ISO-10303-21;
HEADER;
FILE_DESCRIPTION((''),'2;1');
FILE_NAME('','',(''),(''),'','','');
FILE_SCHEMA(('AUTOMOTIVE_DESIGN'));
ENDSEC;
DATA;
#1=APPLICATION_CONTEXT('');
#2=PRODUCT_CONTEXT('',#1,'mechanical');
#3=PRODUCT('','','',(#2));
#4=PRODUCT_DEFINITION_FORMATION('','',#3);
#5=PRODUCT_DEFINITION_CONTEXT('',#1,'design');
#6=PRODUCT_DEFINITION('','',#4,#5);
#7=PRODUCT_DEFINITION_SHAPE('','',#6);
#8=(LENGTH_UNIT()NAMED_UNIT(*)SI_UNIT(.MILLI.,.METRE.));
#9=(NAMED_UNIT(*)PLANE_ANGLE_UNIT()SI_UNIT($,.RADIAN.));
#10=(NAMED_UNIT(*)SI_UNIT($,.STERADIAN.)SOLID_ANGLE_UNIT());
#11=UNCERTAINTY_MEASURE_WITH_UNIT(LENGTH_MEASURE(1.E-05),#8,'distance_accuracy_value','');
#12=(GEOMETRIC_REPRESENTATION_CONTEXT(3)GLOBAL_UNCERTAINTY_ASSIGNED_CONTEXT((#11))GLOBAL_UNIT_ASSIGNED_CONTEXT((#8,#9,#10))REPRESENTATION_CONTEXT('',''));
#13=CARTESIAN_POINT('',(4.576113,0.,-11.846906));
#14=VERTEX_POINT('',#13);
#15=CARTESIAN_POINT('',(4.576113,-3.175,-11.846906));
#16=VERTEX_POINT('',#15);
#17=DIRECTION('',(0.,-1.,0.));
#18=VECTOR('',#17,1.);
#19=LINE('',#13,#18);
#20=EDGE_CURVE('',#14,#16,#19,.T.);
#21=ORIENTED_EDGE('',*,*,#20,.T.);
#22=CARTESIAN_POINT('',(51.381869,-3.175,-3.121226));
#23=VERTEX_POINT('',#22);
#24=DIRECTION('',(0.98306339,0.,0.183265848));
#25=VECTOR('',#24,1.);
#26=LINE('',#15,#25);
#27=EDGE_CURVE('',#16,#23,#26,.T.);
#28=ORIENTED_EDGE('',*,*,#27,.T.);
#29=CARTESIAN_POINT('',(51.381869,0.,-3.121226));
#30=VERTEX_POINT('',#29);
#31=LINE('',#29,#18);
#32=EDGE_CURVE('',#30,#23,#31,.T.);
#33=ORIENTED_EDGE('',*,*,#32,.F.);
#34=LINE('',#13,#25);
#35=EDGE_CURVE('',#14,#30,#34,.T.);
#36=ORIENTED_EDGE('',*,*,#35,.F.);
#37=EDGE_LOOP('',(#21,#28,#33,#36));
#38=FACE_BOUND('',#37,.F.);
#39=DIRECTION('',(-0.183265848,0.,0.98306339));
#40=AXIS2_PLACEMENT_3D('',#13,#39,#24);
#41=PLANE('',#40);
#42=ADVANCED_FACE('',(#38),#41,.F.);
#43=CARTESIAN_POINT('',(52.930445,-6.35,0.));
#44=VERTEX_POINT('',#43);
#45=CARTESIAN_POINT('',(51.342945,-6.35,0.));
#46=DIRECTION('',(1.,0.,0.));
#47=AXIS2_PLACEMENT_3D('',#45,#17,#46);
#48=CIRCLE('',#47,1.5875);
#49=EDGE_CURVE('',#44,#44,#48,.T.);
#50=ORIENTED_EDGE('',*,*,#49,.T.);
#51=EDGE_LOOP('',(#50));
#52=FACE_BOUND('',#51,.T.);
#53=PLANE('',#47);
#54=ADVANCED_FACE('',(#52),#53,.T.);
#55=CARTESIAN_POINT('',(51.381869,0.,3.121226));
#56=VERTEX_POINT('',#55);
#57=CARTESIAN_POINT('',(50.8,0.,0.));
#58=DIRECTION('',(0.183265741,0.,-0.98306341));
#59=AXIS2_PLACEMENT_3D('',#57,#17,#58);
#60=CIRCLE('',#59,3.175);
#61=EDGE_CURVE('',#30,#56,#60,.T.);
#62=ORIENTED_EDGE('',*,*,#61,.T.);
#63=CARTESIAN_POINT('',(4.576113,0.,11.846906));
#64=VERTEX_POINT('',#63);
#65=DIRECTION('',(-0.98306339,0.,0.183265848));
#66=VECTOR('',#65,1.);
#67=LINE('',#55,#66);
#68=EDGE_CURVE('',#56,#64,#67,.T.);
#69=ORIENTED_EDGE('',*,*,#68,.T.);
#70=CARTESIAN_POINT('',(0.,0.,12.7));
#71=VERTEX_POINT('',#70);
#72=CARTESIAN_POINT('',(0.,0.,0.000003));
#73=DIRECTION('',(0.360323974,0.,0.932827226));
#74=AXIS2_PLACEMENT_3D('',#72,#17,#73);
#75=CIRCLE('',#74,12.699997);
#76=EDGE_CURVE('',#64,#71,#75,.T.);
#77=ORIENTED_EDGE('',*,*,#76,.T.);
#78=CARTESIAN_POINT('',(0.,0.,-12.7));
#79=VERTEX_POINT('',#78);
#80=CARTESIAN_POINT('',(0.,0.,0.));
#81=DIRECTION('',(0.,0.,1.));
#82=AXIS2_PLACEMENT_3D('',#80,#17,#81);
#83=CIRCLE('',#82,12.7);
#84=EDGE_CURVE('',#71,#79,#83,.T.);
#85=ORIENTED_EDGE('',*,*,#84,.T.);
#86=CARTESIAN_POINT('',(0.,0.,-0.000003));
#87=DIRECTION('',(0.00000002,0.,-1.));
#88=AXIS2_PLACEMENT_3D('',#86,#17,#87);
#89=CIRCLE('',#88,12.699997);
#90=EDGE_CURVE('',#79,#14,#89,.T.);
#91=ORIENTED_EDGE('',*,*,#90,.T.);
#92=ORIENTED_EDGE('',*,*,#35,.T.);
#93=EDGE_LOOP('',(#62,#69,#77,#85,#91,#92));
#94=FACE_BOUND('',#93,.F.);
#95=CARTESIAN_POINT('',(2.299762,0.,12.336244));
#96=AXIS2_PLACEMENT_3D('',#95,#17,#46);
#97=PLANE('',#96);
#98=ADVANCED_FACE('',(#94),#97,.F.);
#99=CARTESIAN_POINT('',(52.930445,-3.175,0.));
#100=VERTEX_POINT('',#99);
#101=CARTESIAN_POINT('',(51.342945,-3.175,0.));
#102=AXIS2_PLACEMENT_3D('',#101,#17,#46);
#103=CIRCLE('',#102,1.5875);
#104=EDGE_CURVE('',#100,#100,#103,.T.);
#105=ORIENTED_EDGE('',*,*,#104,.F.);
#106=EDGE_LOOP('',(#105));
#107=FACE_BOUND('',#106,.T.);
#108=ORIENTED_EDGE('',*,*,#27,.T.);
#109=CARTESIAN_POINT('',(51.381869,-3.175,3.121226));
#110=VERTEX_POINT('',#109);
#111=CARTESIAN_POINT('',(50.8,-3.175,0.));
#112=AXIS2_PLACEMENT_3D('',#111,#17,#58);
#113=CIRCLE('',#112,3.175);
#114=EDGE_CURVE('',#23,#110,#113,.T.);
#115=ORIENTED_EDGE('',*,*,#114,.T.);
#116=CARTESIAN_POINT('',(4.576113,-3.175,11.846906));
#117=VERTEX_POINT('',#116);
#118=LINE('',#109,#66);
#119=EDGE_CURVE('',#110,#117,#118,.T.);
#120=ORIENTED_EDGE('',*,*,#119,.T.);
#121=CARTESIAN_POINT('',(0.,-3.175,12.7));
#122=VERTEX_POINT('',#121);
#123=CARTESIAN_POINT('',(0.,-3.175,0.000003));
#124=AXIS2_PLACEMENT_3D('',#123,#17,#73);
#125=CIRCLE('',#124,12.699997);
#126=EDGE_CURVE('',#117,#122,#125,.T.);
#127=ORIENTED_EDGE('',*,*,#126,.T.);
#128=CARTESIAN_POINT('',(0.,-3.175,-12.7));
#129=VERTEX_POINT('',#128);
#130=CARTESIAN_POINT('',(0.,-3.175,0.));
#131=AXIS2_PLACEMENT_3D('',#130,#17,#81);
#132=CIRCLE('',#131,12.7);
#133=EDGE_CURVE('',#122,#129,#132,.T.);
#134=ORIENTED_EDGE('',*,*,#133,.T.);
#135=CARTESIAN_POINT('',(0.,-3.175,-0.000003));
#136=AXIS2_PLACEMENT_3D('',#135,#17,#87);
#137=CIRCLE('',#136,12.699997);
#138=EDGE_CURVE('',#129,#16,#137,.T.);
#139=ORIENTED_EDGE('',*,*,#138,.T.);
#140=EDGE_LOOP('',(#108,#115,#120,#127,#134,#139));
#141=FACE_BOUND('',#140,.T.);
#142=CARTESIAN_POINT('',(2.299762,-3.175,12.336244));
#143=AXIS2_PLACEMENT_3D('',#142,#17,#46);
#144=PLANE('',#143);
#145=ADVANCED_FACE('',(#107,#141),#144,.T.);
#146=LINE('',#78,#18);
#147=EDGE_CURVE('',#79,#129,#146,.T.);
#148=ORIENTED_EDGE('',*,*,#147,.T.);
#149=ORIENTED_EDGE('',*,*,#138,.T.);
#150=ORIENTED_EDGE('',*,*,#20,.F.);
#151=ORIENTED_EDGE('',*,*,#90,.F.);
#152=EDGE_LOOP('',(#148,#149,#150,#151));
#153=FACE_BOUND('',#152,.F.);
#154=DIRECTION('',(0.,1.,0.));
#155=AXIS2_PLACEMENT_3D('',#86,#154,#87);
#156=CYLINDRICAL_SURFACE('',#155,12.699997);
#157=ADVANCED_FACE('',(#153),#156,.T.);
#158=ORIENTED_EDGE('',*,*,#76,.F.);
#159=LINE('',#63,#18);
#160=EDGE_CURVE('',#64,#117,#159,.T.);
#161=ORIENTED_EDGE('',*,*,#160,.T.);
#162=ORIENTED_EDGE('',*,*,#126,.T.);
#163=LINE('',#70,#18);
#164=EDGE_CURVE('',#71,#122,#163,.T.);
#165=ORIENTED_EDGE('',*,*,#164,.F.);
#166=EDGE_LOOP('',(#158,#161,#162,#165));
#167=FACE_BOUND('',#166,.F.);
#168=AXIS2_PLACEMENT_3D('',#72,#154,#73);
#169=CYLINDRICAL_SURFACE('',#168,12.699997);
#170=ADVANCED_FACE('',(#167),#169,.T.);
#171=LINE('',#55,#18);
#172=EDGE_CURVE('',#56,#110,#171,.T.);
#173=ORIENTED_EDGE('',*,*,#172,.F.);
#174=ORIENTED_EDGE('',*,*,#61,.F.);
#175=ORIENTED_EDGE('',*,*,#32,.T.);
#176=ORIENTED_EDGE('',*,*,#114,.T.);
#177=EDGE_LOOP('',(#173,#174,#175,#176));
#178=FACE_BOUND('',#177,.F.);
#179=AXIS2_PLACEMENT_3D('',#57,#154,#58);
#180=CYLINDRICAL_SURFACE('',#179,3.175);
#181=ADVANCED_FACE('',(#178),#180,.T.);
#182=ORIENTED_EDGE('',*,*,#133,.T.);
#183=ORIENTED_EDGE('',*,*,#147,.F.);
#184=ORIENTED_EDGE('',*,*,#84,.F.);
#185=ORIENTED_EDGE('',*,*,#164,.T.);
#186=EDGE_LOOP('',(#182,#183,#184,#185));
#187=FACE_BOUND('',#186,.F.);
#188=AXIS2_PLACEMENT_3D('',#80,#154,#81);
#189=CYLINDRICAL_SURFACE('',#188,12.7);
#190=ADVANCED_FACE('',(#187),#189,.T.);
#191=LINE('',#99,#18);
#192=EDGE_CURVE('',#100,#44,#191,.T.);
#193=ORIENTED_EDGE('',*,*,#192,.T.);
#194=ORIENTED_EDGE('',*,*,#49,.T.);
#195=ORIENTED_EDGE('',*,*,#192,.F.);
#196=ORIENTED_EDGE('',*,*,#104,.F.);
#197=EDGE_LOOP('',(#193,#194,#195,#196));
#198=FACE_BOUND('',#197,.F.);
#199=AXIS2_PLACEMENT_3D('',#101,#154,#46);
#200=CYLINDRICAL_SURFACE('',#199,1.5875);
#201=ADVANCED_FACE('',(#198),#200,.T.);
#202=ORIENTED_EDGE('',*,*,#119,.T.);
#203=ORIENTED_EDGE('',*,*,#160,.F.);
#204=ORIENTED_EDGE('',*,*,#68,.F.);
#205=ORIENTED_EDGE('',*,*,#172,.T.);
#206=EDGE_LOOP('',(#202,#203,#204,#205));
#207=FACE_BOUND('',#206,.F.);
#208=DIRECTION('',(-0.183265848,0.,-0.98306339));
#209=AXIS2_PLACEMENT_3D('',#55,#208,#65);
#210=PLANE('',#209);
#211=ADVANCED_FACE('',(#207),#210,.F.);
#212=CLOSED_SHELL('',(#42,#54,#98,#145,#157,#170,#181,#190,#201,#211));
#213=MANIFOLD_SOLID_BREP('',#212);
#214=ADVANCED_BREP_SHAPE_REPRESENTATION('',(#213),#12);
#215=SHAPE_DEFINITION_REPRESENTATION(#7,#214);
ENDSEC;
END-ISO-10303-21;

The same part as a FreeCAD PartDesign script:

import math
import FreeCAD as App
import Part
import Sketcher
from FreeCAD import Vector
Q = App.Units.Quantity

doc = App.newDocument("Part")
body = doc.addObject("PartDesign::Body", "Body")

# Sketch on XZ plane
sketch1 = body.newObject("Sketcher::SketchObject", "Sketch")
sketch1.AttachmentSupport = (doc.getObject("XZ_Plane"), [""])
sketch1.MapMode = "FlatFace"
sketch1.addGeometry([
    Part.ArcOfCircle(Part.Circle(Vector(0, 0, 0), Vector(0, 0, 1), 12.7), math.radians(69), math.radians(90)),  # 0
    Part.ArcOfCircle(Part.Circle(Vector(0, 0, 0), Vector(0, 0, 1), 12.7), math.radians(90), math.radians(270)),  # 1
    Part.ArcOfCircle(Part.Circle(Vector(0, 0, 0), Vector(0, 0, 1), 12.7), math.radians(-90), math.radians(-69)),  # 2
    Part.LineSegment(Vector(4.6, -11.8, 0), Vector(51.4, -3.1, 0)),  # 3
    Part.ArcOfCircle(Part.Circle(Vector(50.8, 0, 0), Vector(0, 0, 1), 3.2), math.radians(-79), math.radians(79)),  # 4
    Part.LineSegment(Vector(51.4, 3.1, 0), Vector(4.6, 11.8, 0)),  # 5
], False)
sketch1.addConstraint([
    Sketcher.Constraint("Tangent", 0, 2, 1, 1),
    Sketcher.Constraint("Tangent", 1, 2, 2, 1),
    Sketcher.Constraint("Coincident", 2, 2, 3, 1),
    Sketcher.Constraint("Tangent", 3, 2, 4, 1),
    Sketcher.Constraint("Tangent", 4, 2, 5, 1),
    Sketcher.Constraint("Coincident", 5, 2, 0, 1),
    Sketcher.Constraint("Coincident", 0, 3, -1, 1),
    Sketcher.Constraint("Equal", 0, 2),
    Sketcher.Constraint("Symmetric", 0, 2, 1, 2, -1, 1),
    Sketcher.Constraint("Symmetric", 3, 2, 4, 2, -1),
    Sketcher.Constraint("PointOnObject", 0, 2, -2),
    Sketcher.Constraint("Radius", 0, Q("0.4999999 in")),
    Sketcher.Constraint("DistanceX", -1, 1, 4, 3, Q("2 in")),
    Sketcher.Constraint("Radius", 4, Q("0.125 in")),
    Sketcher.Constraint("DistanceX", -1, 1, 3, 2, 51.381869),
])
pad1 = body.newObject("PartDesign::Pad", "Pad")
pad1.Profile = sketch1
pad1.Length = Q("0.125 in")

# Sketch on XZ plane
sketch2 = body.newObject("Sketcher::SketchObject", "Sketch001")
sketch2.AttachmentSupport = (doc.getObject("XZ_Plane"), [""])
sketch2.MapMode = "FlatFace"
sketch2.AttachmentOffset = App.Placement(Vector(0, 0, 0.125 * 25.4), App.Rotation())
sketch2.addGeometry(Part.Circle(Vector(51.3, 0, 0), Vector(0, 0, 1), 1.6), False)
sketch2.addConstraint([
    Sketcher.Constraint("PointOnObject", 0, 3, -1),
    Sketcher.Constraint("Diameter", 0, Q("0.125 in")),
    Sketcher.Constraint("DistanceX", -1, 1, 0, 3, 51.342945),
])
pad2 = body.newObject("PartDesign::Pad", "Pad001")
pad2.Profile = sketch2
pad2.Length = Q("0.125 in")

doc.recompute()
